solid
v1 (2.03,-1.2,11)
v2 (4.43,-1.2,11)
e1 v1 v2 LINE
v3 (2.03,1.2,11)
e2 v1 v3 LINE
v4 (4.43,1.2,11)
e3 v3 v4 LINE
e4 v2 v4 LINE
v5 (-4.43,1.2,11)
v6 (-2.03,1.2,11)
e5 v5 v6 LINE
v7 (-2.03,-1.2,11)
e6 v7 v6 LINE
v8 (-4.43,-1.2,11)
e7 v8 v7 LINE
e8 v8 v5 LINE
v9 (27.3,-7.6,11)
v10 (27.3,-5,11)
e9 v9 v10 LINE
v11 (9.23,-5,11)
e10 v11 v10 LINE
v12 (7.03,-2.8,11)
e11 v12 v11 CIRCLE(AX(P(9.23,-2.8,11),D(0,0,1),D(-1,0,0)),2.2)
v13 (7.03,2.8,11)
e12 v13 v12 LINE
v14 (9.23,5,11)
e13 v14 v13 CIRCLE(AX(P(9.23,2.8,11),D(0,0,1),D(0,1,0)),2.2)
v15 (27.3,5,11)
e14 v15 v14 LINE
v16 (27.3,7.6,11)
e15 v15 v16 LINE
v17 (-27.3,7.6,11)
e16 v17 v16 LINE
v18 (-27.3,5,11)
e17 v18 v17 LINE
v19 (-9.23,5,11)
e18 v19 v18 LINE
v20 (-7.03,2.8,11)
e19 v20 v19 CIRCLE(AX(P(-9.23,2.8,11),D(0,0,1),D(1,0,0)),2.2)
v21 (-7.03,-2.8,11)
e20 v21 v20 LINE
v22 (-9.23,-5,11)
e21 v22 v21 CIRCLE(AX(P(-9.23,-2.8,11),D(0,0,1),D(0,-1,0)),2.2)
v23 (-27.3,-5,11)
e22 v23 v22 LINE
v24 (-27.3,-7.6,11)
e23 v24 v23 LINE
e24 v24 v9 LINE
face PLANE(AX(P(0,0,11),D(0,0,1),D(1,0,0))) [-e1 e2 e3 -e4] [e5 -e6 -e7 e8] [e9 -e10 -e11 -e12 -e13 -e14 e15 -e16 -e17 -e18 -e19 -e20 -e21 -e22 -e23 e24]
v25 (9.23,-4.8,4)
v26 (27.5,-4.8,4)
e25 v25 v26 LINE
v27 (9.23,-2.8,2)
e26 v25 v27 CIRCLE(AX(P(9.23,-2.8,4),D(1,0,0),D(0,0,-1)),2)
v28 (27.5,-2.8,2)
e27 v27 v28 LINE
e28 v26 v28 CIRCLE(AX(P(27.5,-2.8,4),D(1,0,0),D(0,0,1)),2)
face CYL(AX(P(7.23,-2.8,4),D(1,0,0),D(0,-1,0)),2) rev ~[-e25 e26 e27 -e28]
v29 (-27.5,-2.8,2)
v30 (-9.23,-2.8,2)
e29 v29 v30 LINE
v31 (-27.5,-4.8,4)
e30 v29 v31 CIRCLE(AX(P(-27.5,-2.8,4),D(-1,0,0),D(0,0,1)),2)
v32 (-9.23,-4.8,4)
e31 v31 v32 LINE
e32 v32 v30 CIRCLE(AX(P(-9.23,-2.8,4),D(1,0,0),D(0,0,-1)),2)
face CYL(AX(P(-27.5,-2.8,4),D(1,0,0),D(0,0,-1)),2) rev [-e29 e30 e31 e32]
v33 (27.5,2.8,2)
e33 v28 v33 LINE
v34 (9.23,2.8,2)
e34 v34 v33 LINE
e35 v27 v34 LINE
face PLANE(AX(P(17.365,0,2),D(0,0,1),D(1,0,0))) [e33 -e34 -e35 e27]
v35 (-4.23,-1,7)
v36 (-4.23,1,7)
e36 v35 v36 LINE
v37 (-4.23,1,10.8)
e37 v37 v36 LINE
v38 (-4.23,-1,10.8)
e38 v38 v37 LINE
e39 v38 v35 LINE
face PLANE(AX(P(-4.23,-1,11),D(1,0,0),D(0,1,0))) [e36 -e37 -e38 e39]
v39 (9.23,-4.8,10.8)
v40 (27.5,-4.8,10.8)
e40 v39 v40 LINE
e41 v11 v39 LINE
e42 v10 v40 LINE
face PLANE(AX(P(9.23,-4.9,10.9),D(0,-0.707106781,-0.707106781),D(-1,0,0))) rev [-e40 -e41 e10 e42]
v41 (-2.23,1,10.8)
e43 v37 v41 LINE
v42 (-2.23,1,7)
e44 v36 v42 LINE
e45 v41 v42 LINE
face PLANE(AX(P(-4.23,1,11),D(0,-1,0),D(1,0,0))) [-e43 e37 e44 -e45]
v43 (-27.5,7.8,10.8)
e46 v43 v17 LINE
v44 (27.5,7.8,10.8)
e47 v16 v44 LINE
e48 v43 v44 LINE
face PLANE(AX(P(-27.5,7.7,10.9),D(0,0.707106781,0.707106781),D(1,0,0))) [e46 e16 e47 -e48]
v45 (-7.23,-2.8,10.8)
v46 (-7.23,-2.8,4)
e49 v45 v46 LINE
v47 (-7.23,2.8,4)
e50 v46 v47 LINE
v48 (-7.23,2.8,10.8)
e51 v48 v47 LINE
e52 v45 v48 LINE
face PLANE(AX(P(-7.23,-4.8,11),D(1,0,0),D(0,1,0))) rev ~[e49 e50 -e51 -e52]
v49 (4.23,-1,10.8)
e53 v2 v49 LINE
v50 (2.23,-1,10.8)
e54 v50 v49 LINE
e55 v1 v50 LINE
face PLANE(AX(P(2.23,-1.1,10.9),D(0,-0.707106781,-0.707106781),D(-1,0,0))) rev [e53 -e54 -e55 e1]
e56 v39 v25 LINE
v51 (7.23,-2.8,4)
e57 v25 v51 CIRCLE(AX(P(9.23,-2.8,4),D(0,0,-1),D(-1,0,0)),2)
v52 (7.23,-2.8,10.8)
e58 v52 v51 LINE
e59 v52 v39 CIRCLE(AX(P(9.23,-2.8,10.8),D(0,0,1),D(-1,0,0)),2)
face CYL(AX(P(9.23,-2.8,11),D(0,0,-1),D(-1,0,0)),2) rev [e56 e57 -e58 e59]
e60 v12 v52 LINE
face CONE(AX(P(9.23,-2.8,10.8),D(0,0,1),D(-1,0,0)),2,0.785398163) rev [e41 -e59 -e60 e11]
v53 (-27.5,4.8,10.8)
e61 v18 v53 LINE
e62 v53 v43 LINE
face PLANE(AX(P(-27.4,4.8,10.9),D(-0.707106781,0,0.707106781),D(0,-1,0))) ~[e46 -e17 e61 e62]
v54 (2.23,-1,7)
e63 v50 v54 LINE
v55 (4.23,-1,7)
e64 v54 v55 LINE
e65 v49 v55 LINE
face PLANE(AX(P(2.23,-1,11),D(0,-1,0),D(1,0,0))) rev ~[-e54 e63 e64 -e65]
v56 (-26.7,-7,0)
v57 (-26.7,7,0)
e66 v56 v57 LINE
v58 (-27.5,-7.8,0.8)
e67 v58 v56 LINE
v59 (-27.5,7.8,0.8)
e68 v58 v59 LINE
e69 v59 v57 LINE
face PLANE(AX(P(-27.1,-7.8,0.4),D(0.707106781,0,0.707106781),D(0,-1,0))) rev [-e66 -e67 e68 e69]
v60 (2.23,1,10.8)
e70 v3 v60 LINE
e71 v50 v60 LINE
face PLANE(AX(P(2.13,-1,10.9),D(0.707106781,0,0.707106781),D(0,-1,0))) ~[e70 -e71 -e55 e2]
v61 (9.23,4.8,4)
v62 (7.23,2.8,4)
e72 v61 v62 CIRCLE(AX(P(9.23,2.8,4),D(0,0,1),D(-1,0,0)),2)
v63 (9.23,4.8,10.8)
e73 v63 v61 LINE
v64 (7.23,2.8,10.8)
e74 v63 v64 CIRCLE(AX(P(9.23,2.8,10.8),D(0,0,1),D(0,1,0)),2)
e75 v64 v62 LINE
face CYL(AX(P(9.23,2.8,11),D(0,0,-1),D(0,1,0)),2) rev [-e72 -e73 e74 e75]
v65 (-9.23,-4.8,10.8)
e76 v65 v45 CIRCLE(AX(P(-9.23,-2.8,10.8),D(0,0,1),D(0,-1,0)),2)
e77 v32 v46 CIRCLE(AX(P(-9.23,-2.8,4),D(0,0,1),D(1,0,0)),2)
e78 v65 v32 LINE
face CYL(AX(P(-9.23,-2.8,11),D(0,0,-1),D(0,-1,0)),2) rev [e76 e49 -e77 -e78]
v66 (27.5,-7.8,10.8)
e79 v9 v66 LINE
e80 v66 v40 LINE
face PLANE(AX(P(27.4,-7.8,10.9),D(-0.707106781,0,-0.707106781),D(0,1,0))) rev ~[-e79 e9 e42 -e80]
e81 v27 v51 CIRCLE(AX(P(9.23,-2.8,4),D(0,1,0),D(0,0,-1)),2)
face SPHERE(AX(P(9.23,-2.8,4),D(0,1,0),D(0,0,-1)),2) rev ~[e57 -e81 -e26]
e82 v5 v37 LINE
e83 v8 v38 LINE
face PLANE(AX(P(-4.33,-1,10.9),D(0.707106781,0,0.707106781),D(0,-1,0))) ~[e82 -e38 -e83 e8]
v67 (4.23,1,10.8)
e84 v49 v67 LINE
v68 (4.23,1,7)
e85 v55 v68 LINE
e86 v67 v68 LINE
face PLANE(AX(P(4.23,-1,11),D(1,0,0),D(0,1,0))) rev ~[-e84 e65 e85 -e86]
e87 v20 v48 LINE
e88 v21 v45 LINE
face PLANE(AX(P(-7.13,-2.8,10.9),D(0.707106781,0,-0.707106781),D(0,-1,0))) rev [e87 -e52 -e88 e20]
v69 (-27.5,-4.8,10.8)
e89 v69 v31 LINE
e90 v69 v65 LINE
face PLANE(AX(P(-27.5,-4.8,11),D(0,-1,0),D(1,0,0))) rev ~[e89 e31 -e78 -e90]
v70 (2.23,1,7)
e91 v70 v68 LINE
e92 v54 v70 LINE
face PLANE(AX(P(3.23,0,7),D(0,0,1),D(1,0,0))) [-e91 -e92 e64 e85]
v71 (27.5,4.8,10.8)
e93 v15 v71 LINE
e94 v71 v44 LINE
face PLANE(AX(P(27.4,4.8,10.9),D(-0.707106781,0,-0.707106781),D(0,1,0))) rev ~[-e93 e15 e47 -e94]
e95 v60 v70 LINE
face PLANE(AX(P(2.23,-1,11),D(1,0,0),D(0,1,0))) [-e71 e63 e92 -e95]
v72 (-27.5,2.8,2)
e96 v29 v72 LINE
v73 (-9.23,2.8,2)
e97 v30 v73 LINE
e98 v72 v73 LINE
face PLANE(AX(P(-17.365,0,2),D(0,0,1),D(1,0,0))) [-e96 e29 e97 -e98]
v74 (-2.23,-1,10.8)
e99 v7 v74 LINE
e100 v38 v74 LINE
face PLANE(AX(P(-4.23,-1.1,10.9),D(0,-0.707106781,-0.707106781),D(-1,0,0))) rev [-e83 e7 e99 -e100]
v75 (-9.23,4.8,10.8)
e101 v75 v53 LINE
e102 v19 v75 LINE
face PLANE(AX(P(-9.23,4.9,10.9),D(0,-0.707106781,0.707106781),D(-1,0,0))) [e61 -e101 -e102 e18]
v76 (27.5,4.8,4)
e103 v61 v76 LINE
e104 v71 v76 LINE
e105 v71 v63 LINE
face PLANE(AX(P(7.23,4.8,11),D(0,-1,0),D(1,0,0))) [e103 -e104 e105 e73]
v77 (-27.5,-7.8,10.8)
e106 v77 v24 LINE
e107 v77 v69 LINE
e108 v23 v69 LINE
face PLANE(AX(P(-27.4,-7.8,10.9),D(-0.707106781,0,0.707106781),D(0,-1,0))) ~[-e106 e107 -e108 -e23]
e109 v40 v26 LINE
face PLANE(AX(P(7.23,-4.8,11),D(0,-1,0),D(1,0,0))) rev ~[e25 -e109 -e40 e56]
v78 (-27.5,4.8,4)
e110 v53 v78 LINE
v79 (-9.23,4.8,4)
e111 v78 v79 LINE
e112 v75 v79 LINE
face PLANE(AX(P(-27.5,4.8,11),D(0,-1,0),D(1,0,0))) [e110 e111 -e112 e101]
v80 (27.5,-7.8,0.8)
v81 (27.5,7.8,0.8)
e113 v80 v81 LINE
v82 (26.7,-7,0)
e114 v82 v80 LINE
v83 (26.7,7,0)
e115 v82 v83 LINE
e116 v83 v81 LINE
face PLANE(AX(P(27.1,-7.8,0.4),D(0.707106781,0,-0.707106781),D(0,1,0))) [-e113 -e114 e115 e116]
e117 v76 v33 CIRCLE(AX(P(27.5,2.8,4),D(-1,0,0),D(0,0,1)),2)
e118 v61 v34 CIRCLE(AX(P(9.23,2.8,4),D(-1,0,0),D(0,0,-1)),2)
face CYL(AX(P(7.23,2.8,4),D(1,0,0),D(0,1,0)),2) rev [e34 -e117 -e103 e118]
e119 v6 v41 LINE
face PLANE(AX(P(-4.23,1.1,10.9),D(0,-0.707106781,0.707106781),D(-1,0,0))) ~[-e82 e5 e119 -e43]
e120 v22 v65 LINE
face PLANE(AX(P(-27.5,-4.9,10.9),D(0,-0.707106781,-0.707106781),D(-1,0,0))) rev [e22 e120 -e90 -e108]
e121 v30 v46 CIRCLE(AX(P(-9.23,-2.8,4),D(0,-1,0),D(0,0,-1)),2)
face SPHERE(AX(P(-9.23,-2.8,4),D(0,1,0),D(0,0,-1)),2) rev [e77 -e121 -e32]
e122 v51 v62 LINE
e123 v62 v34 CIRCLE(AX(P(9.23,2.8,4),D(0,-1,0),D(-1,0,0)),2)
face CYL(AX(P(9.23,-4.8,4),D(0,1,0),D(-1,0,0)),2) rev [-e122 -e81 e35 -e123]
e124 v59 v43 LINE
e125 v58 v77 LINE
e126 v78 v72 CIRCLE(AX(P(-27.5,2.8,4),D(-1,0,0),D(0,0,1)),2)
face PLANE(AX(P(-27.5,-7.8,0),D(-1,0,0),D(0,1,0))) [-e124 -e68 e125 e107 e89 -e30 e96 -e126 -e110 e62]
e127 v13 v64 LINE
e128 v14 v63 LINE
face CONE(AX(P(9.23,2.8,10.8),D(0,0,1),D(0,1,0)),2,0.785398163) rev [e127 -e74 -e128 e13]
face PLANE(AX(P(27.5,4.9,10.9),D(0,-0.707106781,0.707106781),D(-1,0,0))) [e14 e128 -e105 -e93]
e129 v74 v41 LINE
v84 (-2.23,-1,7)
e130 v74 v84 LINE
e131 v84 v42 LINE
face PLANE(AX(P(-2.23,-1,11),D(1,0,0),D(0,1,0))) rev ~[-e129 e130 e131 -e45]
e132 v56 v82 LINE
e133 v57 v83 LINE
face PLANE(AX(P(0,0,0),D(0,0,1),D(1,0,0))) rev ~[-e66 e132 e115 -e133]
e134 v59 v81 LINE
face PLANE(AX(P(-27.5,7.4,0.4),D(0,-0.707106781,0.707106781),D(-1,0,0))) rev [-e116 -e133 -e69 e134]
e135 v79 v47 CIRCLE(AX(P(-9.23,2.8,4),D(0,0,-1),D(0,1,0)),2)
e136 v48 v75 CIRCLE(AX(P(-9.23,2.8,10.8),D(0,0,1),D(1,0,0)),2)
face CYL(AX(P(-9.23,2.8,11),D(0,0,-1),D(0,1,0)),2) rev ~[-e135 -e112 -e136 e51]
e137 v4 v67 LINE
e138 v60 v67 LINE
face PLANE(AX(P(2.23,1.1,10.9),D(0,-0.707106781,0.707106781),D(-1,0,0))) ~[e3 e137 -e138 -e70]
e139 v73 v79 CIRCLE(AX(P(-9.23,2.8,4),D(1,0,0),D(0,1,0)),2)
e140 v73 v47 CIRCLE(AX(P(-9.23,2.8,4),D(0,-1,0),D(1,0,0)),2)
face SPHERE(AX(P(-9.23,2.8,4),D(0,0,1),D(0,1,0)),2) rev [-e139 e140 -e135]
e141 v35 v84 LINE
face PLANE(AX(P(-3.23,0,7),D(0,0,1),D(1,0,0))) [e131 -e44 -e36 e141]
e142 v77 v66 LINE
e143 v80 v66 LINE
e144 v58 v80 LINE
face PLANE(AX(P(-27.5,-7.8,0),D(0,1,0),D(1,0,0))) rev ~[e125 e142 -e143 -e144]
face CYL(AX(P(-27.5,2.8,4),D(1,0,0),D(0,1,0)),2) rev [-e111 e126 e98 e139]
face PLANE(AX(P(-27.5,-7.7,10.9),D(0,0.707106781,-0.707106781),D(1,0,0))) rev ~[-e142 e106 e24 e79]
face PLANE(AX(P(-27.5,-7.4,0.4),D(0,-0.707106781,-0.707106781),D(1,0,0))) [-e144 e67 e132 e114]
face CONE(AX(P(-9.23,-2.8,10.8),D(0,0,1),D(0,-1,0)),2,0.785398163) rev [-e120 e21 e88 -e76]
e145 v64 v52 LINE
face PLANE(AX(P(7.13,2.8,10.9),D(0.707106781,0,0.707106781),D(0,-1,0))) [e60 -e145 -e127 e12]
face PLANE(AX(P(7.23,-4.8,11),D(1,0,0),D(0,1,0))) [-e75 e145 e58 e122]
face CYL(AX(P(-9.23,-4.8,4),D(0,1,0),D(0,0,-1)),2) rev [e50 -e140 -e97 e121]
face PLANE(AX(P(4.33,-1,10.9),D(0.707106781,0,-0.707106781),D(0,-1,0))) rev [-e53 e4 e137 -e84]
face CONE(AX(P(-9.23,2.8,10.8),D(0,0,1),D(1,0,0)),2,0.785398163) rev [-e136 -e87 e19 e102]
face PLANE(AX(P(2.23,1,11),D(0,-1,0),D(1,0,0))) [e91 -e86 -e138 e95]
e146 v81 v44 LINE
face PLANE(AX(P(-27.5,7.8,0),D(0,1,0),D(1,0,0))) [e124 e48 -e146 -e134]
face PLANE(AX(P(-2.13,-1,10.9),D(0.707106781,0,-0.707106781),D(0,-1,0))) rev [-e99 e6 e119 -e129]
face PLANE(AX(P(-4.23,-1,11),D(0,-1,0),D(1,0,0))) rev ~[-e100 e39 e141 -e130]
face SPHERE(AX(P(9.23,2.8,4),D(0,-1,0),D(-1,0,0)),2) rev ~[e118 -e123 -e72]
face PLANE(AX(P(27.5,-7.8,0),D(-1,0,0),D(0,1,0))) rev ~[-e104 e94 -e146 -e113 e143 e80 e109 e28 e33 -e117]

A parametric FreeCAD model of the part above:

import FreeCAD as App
import Part
import Sketcher


def edges_at(feature, points):
    """Names of the edges that pass closest to the given points."""
    edges = feature.Shape.Edges
    near = lambda p: min(range(len(edges)), key=lambda i: edges[i].distToShape(Part.Vertex(*p))[0])
    return sorted({f"Edge{near(p) + 1}" for p in points})

doc = App.newDocument("Part")
params = doc.addObject("Spreadsheet::Sheet", "Params")
for row, (alias, value) in enumerate([
    ("sketch1_width", "55 mm"),
    ("sketch1_height", "15.6 mm"),
    ("pad1_length", "11 mm"),
    ("sketch2_width", "2 mm"),
    ("pocket1_length", "4 mm"),
    ("sketch3_height", "9.6 mm"),
    ("sketch3_width", "20.27 mm"),
    ("pocket2_length", "9 mm"),
    ("fillet_radius", "2 mm"),
    ("chamfer_size", "0.2 mm"),
    ("chamfer2_size", "0.8 mm"),
], start=1):
    params.set(f"A{row}", alias)
    params.set(f"B{row}", "=" + value)
    params.setAlias(f"B{row}", alias)

body = doc.addObject("PartDesign::Body", "Body")

# Sketch on XY plane
sketch1 = body.newObject("Sketcher::SketchObject", "Sketch")
sketch1.AttachmentSupport = (doc.getObject("XY_Plane"), [""])
sketch1.MapMode = "FlatFace"
sketch1.addGeometry([
    Part.LineSegment(App.Vector(-28, 8, 0), App.Vector(-28, -8, 0)),
    Part.LineSegment(App.Vector(-28, -8, 0), App.Vector(28, -8, 0)),
    Part.LineSegment(App.Vector(28, -8, 0), App.Vector(28, 8, 0)),
    Part.LineSegment(App.Vector(28, 8, 0), App.Vector(-28, 8, 0)),
], False)
sketch1.addConstraint([
    Sketcher.Constraint("Coincident", 0, 2, 1, 1),
    Sketcher.Constraint("Coincident", 1, 2, 2, 1),
    Sketcher.Constraint("Coincident", 2, 2, 3, 1),
    Sketcher.Constraint("Coincident", 3, 2, 0, 1),
    Sketcher.Constraint("Vertical", 0),
    Sketcher.Constraint("Horizontal", 1),
    Sketcher.Constraint("Vertical", 2),
    Sketcher.Constraint("Horizontal", 3),
    Sketcher.Constraint("Symmetric", 0, 2, 2, 2, -1, 1),
    Sketcher.Constraint("DistanceX", 1, 1, 1, 2, 55.0),
    Sketcher.Constraint("DistanceY", 0, 2, 0, 1, 15.6),
])
sketch1.setExpression("Constraints[9]", "Params.sketch1_width")
sketch1.setExpression("Constraints[10]", "Params.sketch1_height")
pad1 = body.newObject("PartDesign::Pad", "Pad")
pad1.Profile = sketch1
pad1.setExpression("Length", "Params.pad1_length")

# Sketch on XY plane
sketch2 = body.newObject("Sketcher::SketchObject", "Sketch001")
sketch2.AttachmentSupport = (doc.getObject("XY_Plane"), [""])
sketch2.MapMode = "FlatFace"
sketch2.AttachmentOffset = App.Placement(App.Vector(0, 0, 11), App.Rotation())
sketch2.addGeometry([
    Part.LineSegment(App.Vector(-4.2, 1, 0), App.Vector(-4.2, -1, 0)),  # 0
    Part.LineSegment(App.Vector(-4.2, -1, 0), App.Vector(-2.2, -1, 0)),  # 1
    Part.LineSegment(App.Vector(-2.2, -1, 0), App.Vector(-2.2, 1, 0)),  # 2
    Part.LineSegment(App.Vector(-2.2, 1, 0), App.Vector(-4.2, 1, 0)),  # 3
    Part.LineSegment(App.Vector(2.2, 1, 0), App.Vector(2.2, -1, 0)),  # 4
    Part.LineSegment(App.Vector(2.2, -1, 0), App.Vector(4.2, -1, 0)),  # 5
    Part.LineSegment(App.Vector(4.2, -1, 0), App.Vector(4.2, 1, 0)),  # 6
    Part.LineSegment(App.Vector(4.2, 1, 0), App.Vector(2.2, 1, 0)),  # 7
], False)
sketch2.addConstraint([
    Sketcher.Constraint("Coincident", 0, 2, 1, 1),
    Sketcher.Constraint("Coincident", 1, 2, 2, 1),
    Sketcher.Constraint("Coincident", 2, 2, 3, 1),
    Sketcher.Constraint("Coincident", 3, 2, 0, 1),
    Sketcher.Constraint("Coincident", 4, 2, 5, 1),
    Sketcher.Constraint("Coincident", 5, 2, 6, 1),
    Sketcher.Constraint("Coincident", 6, 2, 7, 1),
    Sketcher.Constraint("Coincident", 7, 2, 4, 1),
    Sketcher.Constraint("Vertical", 0),
    Sketcher.Constraint("Horizontal", 1),
    Sketcher.Constraint("Vertical", 2),
    Sketcher.Constraint("Horizontal", 3),
    Sketcher.Constraint("Vertical", 4),
    Sketcher.Constraint("Horizontal", 5),
    Sketcher.Constraint("Vertical", 6),
    Sketcher.Constraint("Horizontal", 7),
    Sketcher.Constraint("Symmetric", 2, 2, 4, 2, -1, 1),
    Sketcher.Constraint("Symmetric", 0, 2, 6, 2, -1, 1),
    Sketcher.Constraint("Horizontal", 1, 2, 4, 2),
    Sketcher.Constraint("Equal", 7, 0),
    Sketcher.Constraint("DistanceX", 1, 1, 1, 2, 2.0),
    Sketcher.Constraint("DistanceX", 0, 2, -1, 1, 4.23),
])
sketch2.setExpression("Constraints[20]", "Params.sketch2_width")
pocket1 = body.newObject("PartDesign::Pocket", "Pocket")
pocket1.Profile = sketch2
pocket1.setExpression("Length", "Params.pocket1_length")

# Sketch on XY plane
sketch3 = body.newObject("Sketcher::SketchObject", "Sketch002")
sketch3.AttachmentSupport = (doc.getObject("XY_Plane"), [""])
sketch3.MapMode = "FlatFace"
sketch3.AttachmentOffset = App.Placement(App.Vector(0, 0, 11), App.Rotation())
sketch3.addGeometry([
    Part.LineSegment(App.Vector(-28, 5, 0), App.Vector(-28, -5, 0)),  # 0
    Part.LineSegment(App.Vector(-28, -5, 0), App.Vector(-7, -5, 0)),  # 1
    Part.LineSegment(App.Vector(-7, -5, 0), App.Vector(-7, 5, 0)),  # 2
    Part.LineSegment(App.Vector(-7, 5, 0), App.Vector(-28, 5, 0)),  # 3
    Part.LineSegment(App.Vector(7, 5, 0), App.Vector(7, -5, 0)),  # 4
    Part.LineSegment(App.Vector(7, -5, 0), App.Vector(28, -5, 0)),  # 5
    Part.LineSegment(App.Vector(28, -5, 0), App.Vector(28, 5, 0)),  # 6
    Part.LineSegment(App.Vector(28, 5, 0), App.Vector(7, 5, 0)),  # 7
], False)
sketch3.addConstraint([
    Sketcher.Constraint("Coincident", 0, 2, 1, 1),
    Sketcher.Constraint("Coincident", 1, 2, 2, 1),
    Sketcher.Constraint("Coincident", 2, 2, 3, 1),
    Sketcher.Constraint("Coincident", 3, 2, 0, 1),
    Sketcher.Constraint("Coincident", 4, 2, 5, 1),
    Sketcher.Constraint("Coincident", 5, 2, 6, 1),
    Sketcher.Constraint("Coincident", 6, 2, 7, 1),
    Sketcher.Constraint("Coincident", 7, 2, 4, 1),
    Sketcher.Constraint("Vertical", 0),
    Sketcher.Constraint("Horizontal", 1),
    Sketcher.Constraint("Vertical", 2),
    Sketcher.Constraint("Horizontal", 3),
    Sketcher.Constraint("Vertical", 4),
    Sketcher.Constraint("Horizontal", 5),
    Sketcher.Constraint("Vertical", 6),
    Sketcher.Constraint("Horizontal", 7),
    Sketcher.Constraint("Symmetric", 2, 2, 4, 2, -1, 1),
    Sketcher.Constraint("Symmetric", 0, 2, 6, 2, -1, 1),
    Sketcher.Constraint("Horizontal", 1, 2, 4, 2),
    Sketcher.Constraint("DistanceY", 0, 2, 0, 1, 9.6),
    Sketcher.Constraint("DistanceX", 0, 2, 5, 2, 55.0),
    Sketcher.Constraint("DistanceX", 1, 1, 1, 2, 20.27),
])
sketch3.setExpression("Constraints[19]", "Params.sketch3_height")
sketch3.setExpression("Constraints[21]", "Params.sketch3_width")
pocket2 = body.newObject("PartDesign::Pocket", "Pocket001")
pocket2.Profile = sketch3
pocket2.setExpression("Length", "Params.pocket2_length")
doc.recompute()

fillet = body.newObject("PartDesign::Fillet", "Fillet")
fillet.Base = (pocket2, edges_at(pocket2, [
    (-7.23, 4.8, 6.5),
    (-17.365, 4.8, 2),
    (-7.23, 0, 2),
    (-17.365, -4.8, 2),
    (-7.23, -4.8, 6.5),
    (7.23, 0, 2),
    (7.23, 4.8, 6.5),
    (17.365, 4.8, 2),
    (17.365, -4.8, 2),
    (7.23, -4.8, 6.5),
]))
fillet.setExpression("Radius", "Params.fillet_radius")
doc.recompute()

chamfer = body.newObject("PartDesign::Chamfer", "Chamfer")
chamfer.Base = (fillet, edges_at(fillet, [
    (-18.365, -4.8, 11),
    (-7.816, -4.214, 11),
    (-27.5, -6.3, 11),
    (-7.23, 0, 11),
    (0, -7.8, 11),
    (-7.816, 4.214, 11),
    (27.5, -6.3, 11),
    (-18.365, 4.8, 11),
    (18.365, -4.8, 11),
    (-27.5, 6.3, 11),
    (7.816, -4.214, 11),
    (0, 7.8, 11),
    (7.23, 0, 11),
    (27.5, 6.3, 11),
    (7.816, 4.214, 11),
    (18.365, 4.8, 11),
    (-2.23, 0, 11),
    (-3.23, -1, 11),
    (-3.23, 1, 11),
    (-4.23, 0, 11),
    (3.23, 1, 11),
    (4.23, 0, 11),
    (2.23, 0, 11),
    (3.23, -1, 11),
]))
chamfer.setExpression("Size", "Params.chamfer_size")
doc.recompute()

chamfer2 = body.newObject("PartDesign::Chamfer", "Chamfer001")
chamfer2.Base = (chamfer, edges_at(chamfer, [
    (27.5, 0, 0),
    (0, 7.8, 0),
    (-27.5, 0, 0),
    (0, -7.8, 0),
]))
chamfer2.setExpression("Size", "Params.chamfer2_size")

doc.recompute()
